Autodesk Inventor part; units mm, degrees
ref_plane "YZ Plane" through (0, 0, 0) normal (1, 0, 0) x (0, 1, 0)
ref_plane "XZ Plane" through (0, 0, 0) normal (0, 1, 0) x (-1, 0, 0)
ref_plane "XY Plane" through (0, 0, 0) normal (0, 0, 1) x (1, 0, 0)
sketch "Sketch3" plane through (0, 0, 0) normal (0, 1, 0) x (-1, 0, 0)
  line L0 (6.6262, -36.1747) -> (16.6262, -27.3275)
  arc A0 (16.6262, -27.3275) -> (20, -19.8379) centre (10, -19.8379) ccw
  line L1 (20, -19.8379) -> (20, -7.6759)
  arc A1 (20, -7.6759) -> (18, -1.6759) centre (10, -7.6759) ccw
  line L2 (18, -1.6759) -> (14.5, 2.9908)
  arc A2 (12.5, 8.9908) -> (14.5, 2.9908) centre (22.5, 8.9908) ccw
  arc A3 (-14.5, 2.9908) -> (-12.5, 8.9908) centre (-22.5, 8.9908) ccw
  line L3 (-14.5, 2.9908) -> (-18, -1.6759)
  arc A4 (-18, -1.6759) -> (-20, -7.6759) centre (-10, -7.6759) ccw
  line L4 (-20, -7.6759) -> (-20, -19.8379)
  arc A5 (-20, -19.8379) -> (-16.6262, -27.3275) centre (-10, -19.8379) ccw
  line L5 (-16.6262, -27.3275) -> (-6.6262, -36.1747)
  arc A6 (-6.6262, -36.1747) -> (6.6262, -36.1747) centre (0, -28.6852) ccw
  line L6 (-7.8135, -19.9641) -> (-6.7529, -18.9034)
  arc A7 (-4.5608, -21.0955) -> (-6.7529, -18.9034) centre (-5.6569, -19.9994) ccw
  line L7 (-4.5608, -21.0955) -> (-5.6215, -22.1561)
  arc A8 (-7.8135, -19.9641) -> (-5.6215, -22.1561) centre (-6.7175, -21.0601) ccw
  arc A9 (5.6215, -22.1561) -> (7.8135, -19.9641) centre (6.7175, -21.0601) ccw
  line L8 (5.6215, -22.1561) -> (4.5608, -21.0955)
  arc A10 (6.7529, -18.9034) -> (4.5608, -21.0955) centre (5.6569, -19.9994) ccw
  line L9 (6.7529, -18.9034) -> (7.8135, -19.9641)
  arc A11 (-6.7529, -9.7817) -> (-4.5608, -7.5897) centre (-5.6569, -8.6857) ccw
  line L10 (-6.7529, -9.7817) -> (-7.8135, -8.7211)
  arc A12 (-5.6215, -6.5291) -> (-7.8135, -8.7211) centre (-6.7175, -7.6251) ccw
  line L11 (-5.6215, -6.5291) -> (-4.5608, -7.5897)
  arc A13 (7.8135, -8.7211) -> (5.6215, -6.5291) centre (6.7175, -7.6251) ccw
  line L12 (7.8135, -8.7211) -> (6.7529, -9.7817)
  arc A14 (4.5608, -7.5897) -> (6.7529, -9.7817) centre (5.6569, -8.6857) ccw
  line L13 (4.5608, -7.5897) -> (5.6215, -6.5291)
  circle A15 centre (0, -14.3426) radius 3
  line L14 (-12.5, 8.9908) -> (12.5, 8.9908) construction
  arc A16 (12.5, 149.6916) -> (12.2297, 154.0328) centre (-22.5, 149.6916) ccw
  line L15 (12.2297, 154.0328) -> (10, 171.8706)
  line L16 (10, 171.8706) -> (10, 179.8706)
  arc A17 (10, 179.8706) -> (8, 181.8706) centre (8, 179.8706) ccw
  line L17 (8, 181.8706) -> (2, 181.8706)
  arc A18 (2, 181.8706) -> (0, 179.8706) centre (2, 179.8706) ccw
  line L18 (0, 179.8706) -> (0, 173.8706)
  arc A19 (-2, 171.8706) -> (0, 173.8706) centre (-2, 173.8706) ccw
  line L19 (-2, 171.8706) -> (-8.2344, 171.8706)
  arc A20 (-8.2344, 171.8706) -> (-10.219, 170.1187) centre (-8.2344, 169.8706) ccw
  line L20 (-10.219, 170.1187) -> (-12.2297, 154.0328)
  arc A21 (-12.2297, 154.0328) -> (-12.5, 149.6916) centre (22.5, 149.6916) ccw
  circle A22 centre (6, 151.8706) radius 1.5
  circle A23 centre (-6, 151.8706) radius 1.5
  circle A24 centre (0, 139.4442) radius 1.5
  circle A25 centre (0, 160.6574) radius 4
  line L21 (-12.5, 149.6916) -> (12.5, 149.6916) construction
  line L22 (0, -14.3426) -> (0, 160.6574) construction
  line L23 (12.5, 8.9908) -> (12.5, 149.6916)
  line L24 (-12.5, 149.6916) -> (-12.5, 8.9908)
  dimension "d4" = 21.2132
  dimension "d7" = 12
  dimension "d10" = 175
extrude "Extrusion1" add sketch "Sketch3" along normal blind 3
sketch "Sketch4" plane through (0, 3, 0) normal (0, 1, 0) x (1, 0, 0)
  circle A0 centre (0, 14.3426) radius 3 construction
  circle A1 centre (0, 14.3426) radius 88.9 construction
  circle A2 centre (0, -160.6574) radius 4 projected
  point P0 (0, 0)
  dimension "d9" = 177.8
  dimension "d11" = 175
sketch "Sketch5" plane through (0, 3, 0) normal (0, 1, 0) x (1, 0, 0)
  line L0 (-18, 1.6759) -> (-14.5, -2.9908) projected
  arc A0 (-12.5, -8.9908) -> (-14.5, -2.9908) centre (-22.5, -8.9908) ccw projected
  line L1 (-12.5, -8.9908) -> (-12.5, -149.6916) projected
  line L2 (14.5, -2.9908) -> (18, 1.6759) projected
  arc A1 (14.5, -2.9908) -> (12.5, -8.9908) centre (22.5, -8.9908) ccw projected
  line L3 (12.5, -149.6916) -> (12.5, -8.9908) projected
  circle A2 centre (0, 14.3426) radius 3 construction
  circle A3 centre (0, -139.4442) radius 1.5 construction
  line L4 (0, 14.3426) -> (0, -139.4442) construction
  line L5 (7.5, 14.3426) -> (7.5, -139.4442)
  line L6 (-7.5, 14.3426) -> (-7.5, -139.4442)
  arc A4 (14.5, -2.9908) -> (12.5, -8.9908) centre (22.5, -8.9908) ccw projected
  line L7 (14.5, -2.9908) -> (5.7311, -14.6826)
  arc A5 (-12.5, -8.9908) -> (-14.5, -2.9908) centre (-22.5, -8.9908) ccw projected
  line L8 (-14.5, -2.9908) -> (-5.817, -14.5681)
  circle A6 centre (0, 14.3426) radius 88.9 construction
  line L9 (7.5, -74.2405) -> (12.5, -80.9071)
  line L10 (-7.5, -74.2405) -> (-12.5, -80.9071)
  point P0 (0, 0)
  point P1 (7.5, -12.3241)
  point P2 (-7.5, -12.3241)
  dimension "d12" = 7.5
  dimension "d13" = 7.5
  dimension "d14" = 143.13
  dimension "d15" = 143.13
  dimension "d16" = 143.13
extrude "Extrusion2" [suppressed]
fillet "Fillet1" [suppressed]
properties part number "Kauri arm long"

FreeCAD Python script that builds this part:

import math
import FreeCAD as App
import Part
import Sketcher
from FreeCAD import Vector

doc = App.newDocument("Part")
body = doc.addObject("PartDesign::Body", "Body")

# Sketch on XZ plane
sketch1 = body.newObject("Sketcher::SketchObject", "Sketch")
sketch1.AttachmentSupport = (doc.getObject("XZ_Plane"), [""])
sketch1.MapMode = "FlatFace"
sketch1.addGeometry([
    Part.ArcOfCircle(Part.Circle(Vector(0, -28.6852, 0), Vector(0, 0, 1), 9.999957), math.radians(-131.500215), math.radians(-48.499785)),  # 0
    Part.LineSegment(Vector(-6.6262, -36.1747, 0), Vector(-16.6262, -27.3275, 0)),  # 1
    Part.ArcOfCircle(Part.Circle(Vector(-10, -19.8379, 0), Vector(0, 0, 1), 10.000032), math.radians(180), math.radians(228.500165)),  # 2
    Part.LineSegment(Vector(-20, -19.8379, 0), Vector(-20, -7.6759, 0)),  # 3
    Part.ArcOfCircle(Part.Circle(Vector(-10, -7.6759, 0), Vector(0, 0, 1), 10), math.radians(143.130102), math.radians(180)),  # 4
    Part.LineSegment(Vector(-18, -1.6759, 0), Vector(-14.5, 2.9908, 0)),  # 5
    Part.ArcOfCircle(Part.Circle(Vector(-22.5, 8.9908, 0), Vector(0, 0, 1), 10), math.radians(-36.869898), math.radians(0)),  # 6
    Part.LineSegment(Vector(-12.5, 8.9908, 0), Vector(-12.5, 149.6916, 0)),  # 7
    Part.ArcOfCircle(Part.Circle(Vector(22.492903, 149.691821, 0), Vector(0, 0, 1), 34.992903), math.radians(172.873921), math.radians(180.000361)),  # 8
    Part.LineSegment(Vector(-12.2297, 154.0328, 0), Vector(-10, 171.8706, 0)),  # 9
    Part.LineSegment(Vector(-10, 171.8706, 0), Vector(-10, 179.8706, 0)),  # 10
    Part.ArcOfCircle(Part.Circle(Vector(-8, 179.8706, 0), Vector(0, 0, 1), 2), math.radians(90), math.radians(180)),  # 11
    Part.LineSegment(Vector(-8, 181.8706, 0), Vector(-2, 181.8706, 0)),  # 12
    Part.ArcOfCircle(Part.Circle(Vector(-2, 179.8706, 0), Vector(0, 0, 1), 2), math.radians(0), math.radians(90)),  # 13
    Part.LineSegment(Vector(0, 179.8706, 0), Vector(0, 173.8706, 0)),  # 14
    Part.ArcOfCircle(Part.Circle(Vector(2, 173.8706, 0), Vector(0, 0, 1), 2), math.radians(180), math.radians(270)),  # 15
    Part.LineSegment(Vector(2, 171.8706, 0), Vector(8.2344, 171.8706, 0)),  # 16
    Part.ArcOfCircle(Part.Circle(Vector(8.2344, 169.8706, 0), Vector(0, 0, 1), 2), math.radians(7.125727), math.radians(90)),  # 17
    Part.LineSegment(Vector(10.219, 170.1187, 0), Vector(12.2297, 154.0328, 0)),  # 18
    Part.ArcOfCircle(Part.Circle(Vector(-22.507073, 149.690938, 0), Vector(0, 0, 1), 35.007073), math.radians(0.001083), math.radians(7.124635)),  # 19
    Part.LineSegment(Vector(12.5, 149.6916, 0), Vector(12.5, 8.9908, 0)),  # 20
    Part.ArcOfCircle(Part.Circle(Vector(22.5, 8.9908, 0), Vector(0, 0, 1), 10), math.radians(180), math.radians(216.869898)),  # 21
    Part.LineSegment(Vector(14.5, 2.9908, 0), Vector(18, -1.6759, 0)),  # 22
    Part.ArcOfCircle(Part.Circle(Vector(10, -7.6759, 0), Vector(0, 0, 1), 10), math.radians(0), math.radians(36.869898)),  # 23
    Part.LineSegment(Vector(20, -7.6759, 0), Vector(20, -19.8379, 0)),  # 24
    Part.ArcOfCircle(Part.Circle(Vector(10, -19.8379, 0), Vector(0, 0, 1), 10), math.radians(-48.500165), math.radians(0)),  # 25
    Part.LineSegment(Vector(16.6262, -27.3275, 0), Vector(6.6262, -36.1747, 0)),  # 26
    Part.ArcOfCircle(Part.Circle(Vector(6.7175, -21.0601, 0), Vector(0, 0, 1), 1.549978), math.radians(-135), math.radians(45)),  # 27
    Part.LineSegment(Vector(7.8135, -19.9641, 0), Vector(6.7529, -18.9034, 0)),  # 28
    Part.ArcOfCircle(Part.Circle(Vector(5.6569, -19.9994, 0), Vector(0, 0, 1), 1.550119), math.radians(45), math.radians(225)),  # 29
    Part.LineSegment(Vector(4.5608, -21.0955, 0), Vector(5.6215, -22.1561, 0)),  # 30
    Part.Circle(Vector(0, -14.3426, 0), Vector(0, 0, 1), 3),  # 31
    Part.ArcOfCircle(Part.Circle(Vector(5.6569, -8.6857, 0), Vector(0, 0, 1), 1.549978), math.radians(135.002614), math.radians(315)),  # 32
    Part.LineSegment(Vector(6.7529, -9.7817, 0), Vector(7.8135, -8.7211, 0)),  # 33
    Part.ArcOfCircle(Part.Circle(Vector(6.7175, -7.6251, 0), Vector(0, 0, 1), 1.549978), math.radians(-45), math.radians(135)),  # 34
    Part.LineSegment(Vector(5.6215, -6.5291, 0), Vector(4.5608, -7.5897, 0)),  # 35
    Part.ArcOfCircle(Part.Circle(Vector(-6.7175, -21.0601, 0), Vector(0, 0, 1), 1.549978), math.radians(135), math.radians(315)),  # 36
    Part.LineSegment(Vector(-5.6215, -22.1561, 0), Vector(-4.5608, -21.0955, 0)),  # 37
    Part.ArcOfCircle(Part.Circle(Vector(-5.6569, -19.9994, 0), Vector(0, 0, 1), 1.549978), math.radians(-45), math.radians(135)),  # 38
    Part.LineSegment(Vector(-6.7529, -18.9034, 0), Vector(-7.8135, -19.9641, 0)),  # 39
    Part.ArcOfCircle(Part.Circle(Vector(-6.7175, -7.6251, 0), Vector(0, 0, 1), 1.549978), math.radians(45), math.radians(225)),  # 40
    Part.LineSegment(Vector(-7.8135, -8.7211, 0), Vector(-6.7529, -9.7817, 0)),  # 41
    Part.ArcOfCircle(Part.Circle(Vector(-5.6569, -8.6857, 0), Vector(0, 0, 1), 1.550049), math.radians(-135), math.radians(44.997386)),  # 42
    Part.LineSegment(Vector(-4.5608, -7.5897, 0), Vector(-5.6215, -6.5291, 0)),  # 43
    Part.Circle(Vector(6, 151.8706, 0), Vector(0, 0, 1), 1.5),  # 44
    Part.Circle(Vector(0, 139.4442, 0), Vector(0, 0, 1), 1.5),  # 45
    Part.Circle(Vector(0, 160.6574, 0), Vector(0, 0, 1), 4),  # 46
    Part.Circle(Vector(-6, 151.8706, 0), Vector(0, 0, 1), 1.5),  # 47
], False)
sketch1.addConstraint([
    Sketcher.Constraint("Coincident", 0, 1, 1, 1),
    Sketcher.Constraint("Coincident", 1, 2, 2, 2),
    Sketcher.Constraint("Coincident", 2, 1, 3, 1),
    Sketcher.Constraint("Coincident", 3, 2, 4, 2),
    Sketcher.Constraint("Coincident", 4, 1, 5, 1),
    Sketcher.Constraint("Coincident", 5, 2, 6, 1),
    Sketcher.Constraint("Coincident", 6, 2, 7, 1),
    Sketcher.Constraint("Coincident", 7, 2, 8, 2),
    Sketcher.Constraint("Coincident", 8, 1, 9, 1),
    Sketcher.Constraint("Coincident", 9, 2, 10, 1),
    Sketcher.Constraint("Coincident", 10, 2, 11, 2),
    Sketcher.Constraint("Coincident", 11, 1, 12, 1),
    Sketcher.Constraint("Coincident", 12, 2, 13, 2),
    Sketcher.Constraint("Coincident", 13, 1, 14, 1),
    Sketcher.Constraint("Coincident", 14, 2, 15, 1),
    Sketcher.Constraint("Coincident", 15, 2, 16, 1),
    Sketcher.Constraint("Coincident", 16, 2, 17, 2),
    Sketcher.Constraint("Coincident", 17, 1, 18, 1),
    Sketcher.Constraint("Coincident", 18, 2, 19, 2),
    Sketcher.Constraint("Coincident", 19, 1, 20, 1),
    Sketcher.Constraint("Coincident", 20, 2, 21, 1),
    Sketcher.Constraint("Coincident", 21, 2, 22, 1),
    Sketcher.Constraint("Coincident", 22, 2, 23, 2),
    Sketcher.Constraint("Coincident", 23, 1, 24, 1),
    Sketcher.Constraint("Coincident", 24, 2, 25, 2),
    Sketcher.Constraint("Coincident", 25, 1, 26, 1),
    Sketcher.Constraint("Coincident", 26, 2, 0, 2),
    Sketcher.Constraint("Coincident", 27, 2, 28, 1),
    Sketcher.Constraint("Coincident", 28, 2, 29, 1),
    Sketcher.Constraint("Coincident", 29, 2, 30, 1),
    Sketcher.Constraint("Coincident", 30, 2, 27, 1),
    Sketcher.Constraint("Coincident", 32, 2, 33, 1),
    Sketcher.Constraint("Coincident", 33, 2, 34, 1),
    Sketcher.Constraint("Coincident", 34, 2, 35, 1),
    Sketcher.Constraint("Coincident", 35, 2, 32, 1),
    Sketcher.Constraint("Coincident", 36, 2, 37, 1),
    Sketcher.Constraint("Coincident", 37, 2, 38, 1),
    Sketcher.Constraint("Coincident", 38, 2, 39, 1),
    Sketcher.Constraint("Coincident", 39, 2, 36, 1),
    Sketcher.Constraint("Coincident", 40, 2, 41, 1),
    Sketcher.Constraint("Coincident", 41, 2, 42, 1),
    Sketcher.Constraint("Coincident", 42, 2, 43, 1),
    Sketcher.Constraint("Coincident", 43, 2, 40, 1),
    Sketcher.Constraint("Vertical", 3),
    Sketcher.Constraint("Vertical", 7),
    Sketcher.Constraint("Vertical", 10),
    Sketcher.Constraint("Horizontal", 12),
    Sketcher.Constraint("Vertical", 14),
    Sketcher.Constraint("Horizontal", 16),
    Sketcher.Constraint("Vertical", 20),
    Sketcher.Constraint("Vertical", 24),
    Sketcher.Constraint("PointOnObject", 0, 3, -2),
    Sketcher.Constraint("PointOnObject", 31, 3, -2),
    Sketcher.Constraint("PointOnObject", 45, 3, -2),
    Sketcher.Constraint("PointOnObject", 46, 3, -2),
    Sketcher.Constraint("PointOnObject", 13, 1, -2),
    Sketcher.Constraint("Diameter", 31, 6.0),
    Sketcher.Constraint("Diameter", 44, 3.0),
    Sketcher.Constraint("Diameter", 45, 3.0),
    Sketcher.Constraint("Diameter", 46, 8.0),
    Sketcher.Constraint("Diameter", 47, 3.0),
    Sketcher.Constraint("Radius", 0, 10.0),
    Sketcher.Constraint("Radius", 2, 10.0),
    Sketcher.Constraint("Radius", 4, 10.0),
    Sketcher.Constraint("Radius", 6, 10.0),
    Sketcher.Constraint("Radius", 11, 2.0),
    Sketcher.Constraint("Radius", 13, 2.0),
    Sketcher.Constraint("Radius", 15, 2.0),
    Sketcher.Constraint("Radius", 17, 2.0),
    Sketcher.Constraint("Radius", 21, 10.0),
    Sketcher.Constraint("Radius", 23, 10.0),
    Sketcher.Constraint("Radius", 25, 10.0),
    Sketcher.Constraint("DistanceX", 12, 1, 12, 2, 6.0),
    Sketcher.Constraint("DistanceY", 10, 1, 10, 2, 8.0),
    Sketcher.Constraint("DistanceY", 14, 2, 14, 1, 6.0),
    Sketcher.Constraint("Radius", 27, 1.55),
    Sketcher.Constraint("Radius", 29, 1.55),
    Sketcher.Constraint("Radius", 32, 1.55),
    Sketcher.Constraint("Radius", 34, 1.55),
    Sketcher.Constraint("Radius", 36, 1.55),
    Sketcher.Constraint("Radius", 38, 1.55),
    Sketcher.Constraint("Radius", 40, 1.55),
    Sketcher.Constraint("Radius", 42, 1.55),
    Sketcher.Constraint("DistanceX", 2, 3, -1, 1, 10.0),
    Sketcher.Constraint("DistanceX", 11, 3, -1, 1, 8.0),
    Sketcher.Constraint("DistanceX", -1, 1, 23, 3, 10.0),
    Sketcher.Constraint("DistanceX", -1, 1, 44, 3, 6.0),
    Sketcher.Constraint("DistanceX", 47, 3, -1, 1, 6.0),
    Sketcher.Constraint("DistanceX", 4, 1, -1, 1, 18.0),
    Sketcher.Constraint("DistanceX", 11, 1, -1, 1, 8.0),
    Sketcher.Constraint("DistanceX", -1, 1, 15, 2, 2.0),
    Sketcher.Constraint("DistanceX", -1, 1, 22, 2, 18.0),
    Sketcher.Constraint("Radius", 8, 34.993),
    Sketcher.Constraint("Radius", 19, 35.007),
    Sketcher.Constraint("Distance", 28, 1.5),
    Sketcher.Constraint("Distance", 30, 1.5),
    Sketcher.Constraint("Distance", 33, 1.5),
    Sketcher.Constraint("Distance", 35, 1.5),
    Sketcher.Constraint("Distance", 37, 1.5),
    Sketcher.Constraint("Distance", 39, 1.5),
    Sketcher.Constraint("Distance", 41, 1.5),
    Sketcher.Constraint("Distance", 43, 1.5),
    Sketcher.Constraint("DistanceX", 6, 3, -1, 1, 22.5),
    Sketcher.Constraint("DistanceX", -1, 1, 21, 3, 22.5),
    Sketcher.Constraint("DistanceX", 5, 2, -1, 1, 14.5),
    Sketcher.Constraint("DistanceX", -1, 1, 21, 2, 14.5),
    Sketcher.Constraint("DistanceY", 3, 1, 3, 2, 12.162),
    Sketcher.Constraint("DistanceY", 24, 2, 24, 1, 12.162),
    Sketcher.Constraint("DistanceY", 27, 3, -1, 1, 21.06),
    Sketcher.Constraint("DistanceY", 36, 3, -1, 1, 21.06),
    Sketcher.Constraint("Distance", 1, 13.352),
    Sketcher.Constraint("Distance", 18, 16.211),
    Sketcher.Constraint("Distance", 26, 13.352),
    Sketcher.Constraint("DistanceX", 16, 1, 16, 2, 6.2344),
    Sketcher.Constraint("DistanceY", 7, 1, 7, 2, 140.7008),
    Sketcher.Constraint("DistanceY", 20, 2, 20, 1, 140.7008),
    Sketcher.Constraint("DistanceY", 2, 3, -1, 1, 19.838),
    Sketcher.Constraint("DistanceY", 4, 3, -1, 1, 7.676),
    Sketcher.Constraint("DistanceY", -1, 1, 19, 3, 149.691),
    Sketcher.Constraint("DistanceY", 23, 3, -1, 1, 7.676),
    Sketcher.Constraint("DistanceY", 25, 3, -1, 1, 19.838),
    Sketcher.Constraint("DistanceX", -1, 1, 29, 3, 5.657),
    Sketcher.Constraint("DistanceX", -1, 1, 32, 3, 5.657),
    Sketcher.Constraint("DistanceY", 34, 3, -1, 1, 7.625),
    Sketcher.Constraint("DistanceX", 38, 3, -1, 1, 5.657),
    Sketcher.Constraint("DistanceY", 40, 3, -1, 1, 7.625),
    Sketcher.Constraint("DistanceX", 42, 3, -1, 1, 5.657),
    Sketcher.Constraint("DistanceY", 2, 1, -1, 1, 19.838),
    Sketcher.Constraint("DistanceX", -1, 1, 17, 1, 10.219),
    Sketcher.Constraint("DistanceY", 23, 1, -1, 1, 7.676),
    Sketcher.Constraint("DistanceY", 27, 2, -1, 1, 19.964),
    Sketcher.Constraint("DistanceX", -1, 1, 28, 2, 6.753),
    Sketcher.Constraint("DistanceY", 30, 2, -1, 1, 22.156),
    Sketcher.Constraint("DistanceX", -1, 1, 32, 2, 6.753),
    Sketcher.Constraint("DistanceY", 33, 2, -1, 1, 8.721),
    Sketcher.Constraint("DistanceY", 34, 2, -1, 1, 6.529),
    Sketcher.Constraint("DistanceY", 36, 2, -1, 1, 22.156),
    Sketcher.Constraint("DistanceX", 38, 2, -1, 1, 6.753),
    Sketcher.Constraint("DistanceY", 39, 2, -1, 1, 19.964),
    Sketcher.Constraint("DistanceY", 40, 2, -1, 1, 8.721),
    Sketcher.Constraint("DistanceX", 41, 2, -1, 1, 6.753),
    Sketcher.Constraint("DistanceY", 43, 2, -1, 1, 6.529),
    Sketcher.Constraint("Distance", 5, 5.8334),
    Sketcher.Constraint("Distance", 9, 17.9766),
    Sketcher.Constraint("Distance", 22, 5.8334),
    Sketcher.Constraint("DistanceY", 0, 3, -1, 1, 28.6852),
    Sketcher.Constraint("DistanceY", -1, 1, 8, 3, 149.6918),
    Sketcher.Constraint("DistanceY", -1, 1, 11, 3, 179.8706),
    Sketcher.Constraint("DistanceY", -1, 1, 15, 3, 173.8706),
    Sketcher.Constraint("DistanceX", -1, 1, 17, 3, 8.2344),
    Sketcher.Constraint("DistanceX", -1, 1, 27, 3, 6.7175),
    Sketcher.Constraint("DistanceY", 31, 3, -1, 1, 14.3426),
    Sketcher.Constraint("DistanceY", 32, 3, -1, 1, 8.6857),
    Sketcher.Constraint("DistanceX", 36, 3, -1, 1, 6.7175),
    Sketcher.Constraint("DistanceX", 40, 3, -1, 1, 6.7175),
    Sketcher.Constraint("DistanceY", -1, 1, 44, 3, 151.8706),
    Sketcher.Constraint("DistanceY", -1, 1, 45, 3, 139.4442),
    Sketcher.Constraint("DistanceY", -1, 1, 46, 3, 160.6574),
    Sketcher.Constraint("DistanceY", -1, 1, 47, 3, 151.8706),
    Sketcher.Constraint("DistanceX", 0, 1, -1, 1, 6.6262),
    Sketcher.Constraint("DistanceY", -1, 1, 6, 2, 8.9908),
    Sketcher.Constraint("DistanceX", 8, 1, -1, 1, 12.2297),
    Sketcher.Constraint("DistanceY", -1, 1, 13, 1, 179.8706),
    Sketcher.Constraint("DistanceY", -1, 1, 19, 1, 149.6916),
    Sketcher.Constraint("DistanceX", -1, 1, 25, 1, 16.6262),
])
pad1 = body.newObject("PartDesign::Pad", "Pad")
pad1.Profile = sketch1
pad1.Length = 3
pad1.Reversed = True

doc.recompute()
